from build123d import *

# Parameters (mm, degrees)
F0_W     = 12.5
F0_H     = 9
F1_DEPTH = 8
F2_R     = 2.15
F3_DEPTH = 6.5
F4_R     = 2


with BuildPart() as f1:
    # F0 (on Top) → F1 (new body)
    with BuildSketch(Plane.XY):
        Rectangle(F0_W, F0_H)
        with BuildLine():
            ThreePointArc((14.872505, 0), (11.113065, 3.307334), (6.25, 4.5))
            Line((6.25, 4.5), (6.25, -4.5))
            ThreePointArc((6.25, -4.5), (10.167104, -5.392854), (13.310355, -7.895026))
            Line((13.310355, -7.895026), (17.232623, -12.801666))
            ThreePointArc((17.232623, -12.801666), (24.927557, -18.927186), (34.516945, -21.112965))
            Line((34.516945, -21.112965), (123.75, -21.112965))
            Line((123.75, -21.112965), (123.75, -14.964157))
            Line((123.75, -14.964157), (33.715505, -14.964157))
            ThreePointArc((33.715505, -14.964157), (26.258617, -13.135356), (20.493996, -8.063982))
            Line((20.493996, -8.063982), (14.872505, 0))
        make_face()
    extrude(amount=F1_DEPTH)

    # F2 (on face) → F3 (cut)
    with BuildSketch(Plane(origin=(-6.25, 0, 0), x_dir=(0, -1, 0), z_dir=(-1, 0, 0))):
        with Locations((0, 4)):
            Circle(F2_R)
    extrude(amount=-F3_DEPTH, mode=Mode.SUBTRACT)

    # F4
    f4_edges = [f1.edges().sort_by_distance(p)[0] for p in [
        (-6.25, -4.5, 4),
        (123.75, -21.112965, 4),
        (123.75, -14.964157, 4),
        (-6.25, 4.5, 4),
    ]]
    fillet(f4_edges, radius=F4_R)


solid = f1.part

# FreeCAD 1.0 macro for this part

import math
import FreeCAD as App
import Part
import Sketcher

V = App.Vector
Q = App.Units.Quantity


def edges_at(feature, points):
    """Names of the edges that pass closest to the given points."""
    edges = feature.Shape.Edges
    near = lambda p: min(range(len(edges)), key=lambda i: edges[i].distToShape(Part.Vertex(*p))[0])
    return sorted({f"Edge{near(p) + 1}" for p in points})

doc = App.newDocument("Part")
body = doc.addObject("PartDesign::Body", "Body")

# Sketch on XY plane
sketch1 = body.newObject("Sketcher::SketchObject", "Sketch")
sketch1.AttachmentSupport = (doc.getObject("XY_Plane"), [""])
sketch1.MapMode = "FlatFace"
sketch1.addGeometry([
    Part.LineSegment(V(-6, 4, 0), V(-6, -4, 0)),  # 0
    Part.LineSegment(V(-6, -4, 0), V(6, -4, 0)),  # 1
    Part.ArcOfCircle(Part.Circle(V(6, -14, 0), V(0, 0, 1), 9), math.radians(39), math.radians(90)),  # 2
    Part.LineSegment(V(13, -8, 0), V(17, -13, 0)),  # 3
    Part.ArcOfCircle(Part.Circle(V(35, 1, 0), V(0, 0, 1), 22), math.radians(-141), math.radians(-90)),  # 4
    Part.LineSegment(V(35, -21, 0), V(124, -21, 0)),  # 5
    Part.LineSegment(V(124, -21, 0), V(124, -15, 0)),  # 6
    Part.LineSegment(V(124, -15, 0), V(34, -15, 0)),  # 7
    Part.ArcOfCircle(Part.Circle(V(34, 1, 0), V(0, 0, 1), 16), math.radians(-145), math.radians(-90)),  # 8
    Part.LineSegment(V(20, -8, 0), V(15, 0, 0)),  # 9
    Part.ArcOfCircle(Part.Circle(V(6, -6, 0), V(0, 0, 1), 11), math.radians(35), math.radians(90)),  # 10
    Part.LineSegment(V(6, 4, 0), V(-6, 4, 0)),  # 11
], False)
sketch1.addConstraint([
    Sketcher.Constraint("Coincident", 0, 2, 1, 1),
    Sketcher.Constraint("Tangent", 1, 2, 2, 2),
    Sketcher.Constraint("Tangent", 2, 1, 3, 1),
    Sketcher.Constraint("Tangent", 3, 2, 4, 1),
    Sketcher.Constraint("Tangent", 4, 2, 5, 1),
    Sketcher.Constraint("Coincident", 5, 2, 6, 1),
    Sketcher.Constraint("Coincident", 6, 2, 7, 1),
    Sketcher.Constraint("Tangent", 7, 2, 8, 2),
    Sketcher.Constraint("Tangent", 8, 1, 9, 1),
    Sketcher.Constraint("Tangent", 9, 2, 10, 1),
    Sketcher.Constraint("Tangent", 10, 2, 11, 1),
    Sketcher.Constraint("Coincident", 11, 2, 0, 1),
    Sketcher.Constraint("Vertical", 0),
    Sketcher.Constraint("Horizontal", 1),
    Sketcher.Constraint("Horizontal", 5),
    Sketcher.Constraint("Vertical", 6),
    Sketcher.Constraint("Horizontal", 7),
    Sketcher.Constraint("Horizontal", 11),
    Sketcher.Constraint("Symmetric", 0, 2, 10, 2, -1, 1),
    Sketcher.Constraint("PointOnObject", 9, 2, -1),
    Sketcher.Constraint("Vertical", 2, 3, 10, 3),
    Sketcher.Constraint("DistanceY", 0, 2, 0, 1, Q("9 mm")),
    Sketcher.Constraint("DistanceX", 1, 1, 1, 2, Q("12.5 mm")),
    Sketcher.Constraint("DistanceX", -1, 1, 5, 2, Q("123.75 mm")),
    Sketcher.Constraint("Radius", 2, Q("9.038931 mm")),
    Sketcher.Constraint("Radius", 4, Q("22.12804 mm")),
    Sketcher.Constraint("Radius", 8, Q("16.117036 mm")),
    Sketcher.Constraint("Radius", 10, Q("10.510843 mm")),
    Sketcher.Constraint("DistanceY", 4, 2, 3, 2, Q("8.311299 mm")),
    Sketcher.Constraint("DistanceX", 5, 1, 5, 2, Q("89.233055 mm")),
    Sketcher.Constraint("DistanceX", 7, 2, 7, 1, Q("90.034495 mm")),
])
pad1 = body.newObject("PartDesign::Pad", "Pad")
pad1.Profile = sketch1
pad1.Length = 8

# Sketch on YZ plane
sketch2 = body.newObject("Sketcher::SketchObject", "Sketch001")
sketch2.AttachmentSupport = (doc.getObject("YZ_Plane"), [""])
sketch2.MapMode = "FlatFace"
sketch2.AttachmentOffset = App.Placement(V(0, 0, -6.25), App.Rotation())
sketch2.addGeometry(Part.Circle(V(0, 4, 0), V(0, 0, 1), 2.1), False)
sketch2.addConstraint([
    Sketcher.Constraint("PointOnObject", 0, 3, -2),
    Sketcher.Constraint("Diameter", 0, Q("4.3 mm")),
    Sketcher.Constraint("DistanceY", -1, 1, 0, 3, Q("4 mm")),
])
pocket1 = body.newObject("PartDesign::Pocket", "Pocket")
pocket1.Profile = sketch2
pocket1.Length = 6.5
pocket1.Reversed = True
doc.recompute()

fillet = body.newObject("PartDesign::Fillet", "Fillet")
fillet.Base = (pocket1, edges_at(pocket1, [
    (-6.25, -4.5, 4),
    (123.75, -21.113, 4),
    (123.75, -14.964, 4),
    (-6.25, 4.5, 4),
]))
fillet.Radius = 2

doc.recompute()
